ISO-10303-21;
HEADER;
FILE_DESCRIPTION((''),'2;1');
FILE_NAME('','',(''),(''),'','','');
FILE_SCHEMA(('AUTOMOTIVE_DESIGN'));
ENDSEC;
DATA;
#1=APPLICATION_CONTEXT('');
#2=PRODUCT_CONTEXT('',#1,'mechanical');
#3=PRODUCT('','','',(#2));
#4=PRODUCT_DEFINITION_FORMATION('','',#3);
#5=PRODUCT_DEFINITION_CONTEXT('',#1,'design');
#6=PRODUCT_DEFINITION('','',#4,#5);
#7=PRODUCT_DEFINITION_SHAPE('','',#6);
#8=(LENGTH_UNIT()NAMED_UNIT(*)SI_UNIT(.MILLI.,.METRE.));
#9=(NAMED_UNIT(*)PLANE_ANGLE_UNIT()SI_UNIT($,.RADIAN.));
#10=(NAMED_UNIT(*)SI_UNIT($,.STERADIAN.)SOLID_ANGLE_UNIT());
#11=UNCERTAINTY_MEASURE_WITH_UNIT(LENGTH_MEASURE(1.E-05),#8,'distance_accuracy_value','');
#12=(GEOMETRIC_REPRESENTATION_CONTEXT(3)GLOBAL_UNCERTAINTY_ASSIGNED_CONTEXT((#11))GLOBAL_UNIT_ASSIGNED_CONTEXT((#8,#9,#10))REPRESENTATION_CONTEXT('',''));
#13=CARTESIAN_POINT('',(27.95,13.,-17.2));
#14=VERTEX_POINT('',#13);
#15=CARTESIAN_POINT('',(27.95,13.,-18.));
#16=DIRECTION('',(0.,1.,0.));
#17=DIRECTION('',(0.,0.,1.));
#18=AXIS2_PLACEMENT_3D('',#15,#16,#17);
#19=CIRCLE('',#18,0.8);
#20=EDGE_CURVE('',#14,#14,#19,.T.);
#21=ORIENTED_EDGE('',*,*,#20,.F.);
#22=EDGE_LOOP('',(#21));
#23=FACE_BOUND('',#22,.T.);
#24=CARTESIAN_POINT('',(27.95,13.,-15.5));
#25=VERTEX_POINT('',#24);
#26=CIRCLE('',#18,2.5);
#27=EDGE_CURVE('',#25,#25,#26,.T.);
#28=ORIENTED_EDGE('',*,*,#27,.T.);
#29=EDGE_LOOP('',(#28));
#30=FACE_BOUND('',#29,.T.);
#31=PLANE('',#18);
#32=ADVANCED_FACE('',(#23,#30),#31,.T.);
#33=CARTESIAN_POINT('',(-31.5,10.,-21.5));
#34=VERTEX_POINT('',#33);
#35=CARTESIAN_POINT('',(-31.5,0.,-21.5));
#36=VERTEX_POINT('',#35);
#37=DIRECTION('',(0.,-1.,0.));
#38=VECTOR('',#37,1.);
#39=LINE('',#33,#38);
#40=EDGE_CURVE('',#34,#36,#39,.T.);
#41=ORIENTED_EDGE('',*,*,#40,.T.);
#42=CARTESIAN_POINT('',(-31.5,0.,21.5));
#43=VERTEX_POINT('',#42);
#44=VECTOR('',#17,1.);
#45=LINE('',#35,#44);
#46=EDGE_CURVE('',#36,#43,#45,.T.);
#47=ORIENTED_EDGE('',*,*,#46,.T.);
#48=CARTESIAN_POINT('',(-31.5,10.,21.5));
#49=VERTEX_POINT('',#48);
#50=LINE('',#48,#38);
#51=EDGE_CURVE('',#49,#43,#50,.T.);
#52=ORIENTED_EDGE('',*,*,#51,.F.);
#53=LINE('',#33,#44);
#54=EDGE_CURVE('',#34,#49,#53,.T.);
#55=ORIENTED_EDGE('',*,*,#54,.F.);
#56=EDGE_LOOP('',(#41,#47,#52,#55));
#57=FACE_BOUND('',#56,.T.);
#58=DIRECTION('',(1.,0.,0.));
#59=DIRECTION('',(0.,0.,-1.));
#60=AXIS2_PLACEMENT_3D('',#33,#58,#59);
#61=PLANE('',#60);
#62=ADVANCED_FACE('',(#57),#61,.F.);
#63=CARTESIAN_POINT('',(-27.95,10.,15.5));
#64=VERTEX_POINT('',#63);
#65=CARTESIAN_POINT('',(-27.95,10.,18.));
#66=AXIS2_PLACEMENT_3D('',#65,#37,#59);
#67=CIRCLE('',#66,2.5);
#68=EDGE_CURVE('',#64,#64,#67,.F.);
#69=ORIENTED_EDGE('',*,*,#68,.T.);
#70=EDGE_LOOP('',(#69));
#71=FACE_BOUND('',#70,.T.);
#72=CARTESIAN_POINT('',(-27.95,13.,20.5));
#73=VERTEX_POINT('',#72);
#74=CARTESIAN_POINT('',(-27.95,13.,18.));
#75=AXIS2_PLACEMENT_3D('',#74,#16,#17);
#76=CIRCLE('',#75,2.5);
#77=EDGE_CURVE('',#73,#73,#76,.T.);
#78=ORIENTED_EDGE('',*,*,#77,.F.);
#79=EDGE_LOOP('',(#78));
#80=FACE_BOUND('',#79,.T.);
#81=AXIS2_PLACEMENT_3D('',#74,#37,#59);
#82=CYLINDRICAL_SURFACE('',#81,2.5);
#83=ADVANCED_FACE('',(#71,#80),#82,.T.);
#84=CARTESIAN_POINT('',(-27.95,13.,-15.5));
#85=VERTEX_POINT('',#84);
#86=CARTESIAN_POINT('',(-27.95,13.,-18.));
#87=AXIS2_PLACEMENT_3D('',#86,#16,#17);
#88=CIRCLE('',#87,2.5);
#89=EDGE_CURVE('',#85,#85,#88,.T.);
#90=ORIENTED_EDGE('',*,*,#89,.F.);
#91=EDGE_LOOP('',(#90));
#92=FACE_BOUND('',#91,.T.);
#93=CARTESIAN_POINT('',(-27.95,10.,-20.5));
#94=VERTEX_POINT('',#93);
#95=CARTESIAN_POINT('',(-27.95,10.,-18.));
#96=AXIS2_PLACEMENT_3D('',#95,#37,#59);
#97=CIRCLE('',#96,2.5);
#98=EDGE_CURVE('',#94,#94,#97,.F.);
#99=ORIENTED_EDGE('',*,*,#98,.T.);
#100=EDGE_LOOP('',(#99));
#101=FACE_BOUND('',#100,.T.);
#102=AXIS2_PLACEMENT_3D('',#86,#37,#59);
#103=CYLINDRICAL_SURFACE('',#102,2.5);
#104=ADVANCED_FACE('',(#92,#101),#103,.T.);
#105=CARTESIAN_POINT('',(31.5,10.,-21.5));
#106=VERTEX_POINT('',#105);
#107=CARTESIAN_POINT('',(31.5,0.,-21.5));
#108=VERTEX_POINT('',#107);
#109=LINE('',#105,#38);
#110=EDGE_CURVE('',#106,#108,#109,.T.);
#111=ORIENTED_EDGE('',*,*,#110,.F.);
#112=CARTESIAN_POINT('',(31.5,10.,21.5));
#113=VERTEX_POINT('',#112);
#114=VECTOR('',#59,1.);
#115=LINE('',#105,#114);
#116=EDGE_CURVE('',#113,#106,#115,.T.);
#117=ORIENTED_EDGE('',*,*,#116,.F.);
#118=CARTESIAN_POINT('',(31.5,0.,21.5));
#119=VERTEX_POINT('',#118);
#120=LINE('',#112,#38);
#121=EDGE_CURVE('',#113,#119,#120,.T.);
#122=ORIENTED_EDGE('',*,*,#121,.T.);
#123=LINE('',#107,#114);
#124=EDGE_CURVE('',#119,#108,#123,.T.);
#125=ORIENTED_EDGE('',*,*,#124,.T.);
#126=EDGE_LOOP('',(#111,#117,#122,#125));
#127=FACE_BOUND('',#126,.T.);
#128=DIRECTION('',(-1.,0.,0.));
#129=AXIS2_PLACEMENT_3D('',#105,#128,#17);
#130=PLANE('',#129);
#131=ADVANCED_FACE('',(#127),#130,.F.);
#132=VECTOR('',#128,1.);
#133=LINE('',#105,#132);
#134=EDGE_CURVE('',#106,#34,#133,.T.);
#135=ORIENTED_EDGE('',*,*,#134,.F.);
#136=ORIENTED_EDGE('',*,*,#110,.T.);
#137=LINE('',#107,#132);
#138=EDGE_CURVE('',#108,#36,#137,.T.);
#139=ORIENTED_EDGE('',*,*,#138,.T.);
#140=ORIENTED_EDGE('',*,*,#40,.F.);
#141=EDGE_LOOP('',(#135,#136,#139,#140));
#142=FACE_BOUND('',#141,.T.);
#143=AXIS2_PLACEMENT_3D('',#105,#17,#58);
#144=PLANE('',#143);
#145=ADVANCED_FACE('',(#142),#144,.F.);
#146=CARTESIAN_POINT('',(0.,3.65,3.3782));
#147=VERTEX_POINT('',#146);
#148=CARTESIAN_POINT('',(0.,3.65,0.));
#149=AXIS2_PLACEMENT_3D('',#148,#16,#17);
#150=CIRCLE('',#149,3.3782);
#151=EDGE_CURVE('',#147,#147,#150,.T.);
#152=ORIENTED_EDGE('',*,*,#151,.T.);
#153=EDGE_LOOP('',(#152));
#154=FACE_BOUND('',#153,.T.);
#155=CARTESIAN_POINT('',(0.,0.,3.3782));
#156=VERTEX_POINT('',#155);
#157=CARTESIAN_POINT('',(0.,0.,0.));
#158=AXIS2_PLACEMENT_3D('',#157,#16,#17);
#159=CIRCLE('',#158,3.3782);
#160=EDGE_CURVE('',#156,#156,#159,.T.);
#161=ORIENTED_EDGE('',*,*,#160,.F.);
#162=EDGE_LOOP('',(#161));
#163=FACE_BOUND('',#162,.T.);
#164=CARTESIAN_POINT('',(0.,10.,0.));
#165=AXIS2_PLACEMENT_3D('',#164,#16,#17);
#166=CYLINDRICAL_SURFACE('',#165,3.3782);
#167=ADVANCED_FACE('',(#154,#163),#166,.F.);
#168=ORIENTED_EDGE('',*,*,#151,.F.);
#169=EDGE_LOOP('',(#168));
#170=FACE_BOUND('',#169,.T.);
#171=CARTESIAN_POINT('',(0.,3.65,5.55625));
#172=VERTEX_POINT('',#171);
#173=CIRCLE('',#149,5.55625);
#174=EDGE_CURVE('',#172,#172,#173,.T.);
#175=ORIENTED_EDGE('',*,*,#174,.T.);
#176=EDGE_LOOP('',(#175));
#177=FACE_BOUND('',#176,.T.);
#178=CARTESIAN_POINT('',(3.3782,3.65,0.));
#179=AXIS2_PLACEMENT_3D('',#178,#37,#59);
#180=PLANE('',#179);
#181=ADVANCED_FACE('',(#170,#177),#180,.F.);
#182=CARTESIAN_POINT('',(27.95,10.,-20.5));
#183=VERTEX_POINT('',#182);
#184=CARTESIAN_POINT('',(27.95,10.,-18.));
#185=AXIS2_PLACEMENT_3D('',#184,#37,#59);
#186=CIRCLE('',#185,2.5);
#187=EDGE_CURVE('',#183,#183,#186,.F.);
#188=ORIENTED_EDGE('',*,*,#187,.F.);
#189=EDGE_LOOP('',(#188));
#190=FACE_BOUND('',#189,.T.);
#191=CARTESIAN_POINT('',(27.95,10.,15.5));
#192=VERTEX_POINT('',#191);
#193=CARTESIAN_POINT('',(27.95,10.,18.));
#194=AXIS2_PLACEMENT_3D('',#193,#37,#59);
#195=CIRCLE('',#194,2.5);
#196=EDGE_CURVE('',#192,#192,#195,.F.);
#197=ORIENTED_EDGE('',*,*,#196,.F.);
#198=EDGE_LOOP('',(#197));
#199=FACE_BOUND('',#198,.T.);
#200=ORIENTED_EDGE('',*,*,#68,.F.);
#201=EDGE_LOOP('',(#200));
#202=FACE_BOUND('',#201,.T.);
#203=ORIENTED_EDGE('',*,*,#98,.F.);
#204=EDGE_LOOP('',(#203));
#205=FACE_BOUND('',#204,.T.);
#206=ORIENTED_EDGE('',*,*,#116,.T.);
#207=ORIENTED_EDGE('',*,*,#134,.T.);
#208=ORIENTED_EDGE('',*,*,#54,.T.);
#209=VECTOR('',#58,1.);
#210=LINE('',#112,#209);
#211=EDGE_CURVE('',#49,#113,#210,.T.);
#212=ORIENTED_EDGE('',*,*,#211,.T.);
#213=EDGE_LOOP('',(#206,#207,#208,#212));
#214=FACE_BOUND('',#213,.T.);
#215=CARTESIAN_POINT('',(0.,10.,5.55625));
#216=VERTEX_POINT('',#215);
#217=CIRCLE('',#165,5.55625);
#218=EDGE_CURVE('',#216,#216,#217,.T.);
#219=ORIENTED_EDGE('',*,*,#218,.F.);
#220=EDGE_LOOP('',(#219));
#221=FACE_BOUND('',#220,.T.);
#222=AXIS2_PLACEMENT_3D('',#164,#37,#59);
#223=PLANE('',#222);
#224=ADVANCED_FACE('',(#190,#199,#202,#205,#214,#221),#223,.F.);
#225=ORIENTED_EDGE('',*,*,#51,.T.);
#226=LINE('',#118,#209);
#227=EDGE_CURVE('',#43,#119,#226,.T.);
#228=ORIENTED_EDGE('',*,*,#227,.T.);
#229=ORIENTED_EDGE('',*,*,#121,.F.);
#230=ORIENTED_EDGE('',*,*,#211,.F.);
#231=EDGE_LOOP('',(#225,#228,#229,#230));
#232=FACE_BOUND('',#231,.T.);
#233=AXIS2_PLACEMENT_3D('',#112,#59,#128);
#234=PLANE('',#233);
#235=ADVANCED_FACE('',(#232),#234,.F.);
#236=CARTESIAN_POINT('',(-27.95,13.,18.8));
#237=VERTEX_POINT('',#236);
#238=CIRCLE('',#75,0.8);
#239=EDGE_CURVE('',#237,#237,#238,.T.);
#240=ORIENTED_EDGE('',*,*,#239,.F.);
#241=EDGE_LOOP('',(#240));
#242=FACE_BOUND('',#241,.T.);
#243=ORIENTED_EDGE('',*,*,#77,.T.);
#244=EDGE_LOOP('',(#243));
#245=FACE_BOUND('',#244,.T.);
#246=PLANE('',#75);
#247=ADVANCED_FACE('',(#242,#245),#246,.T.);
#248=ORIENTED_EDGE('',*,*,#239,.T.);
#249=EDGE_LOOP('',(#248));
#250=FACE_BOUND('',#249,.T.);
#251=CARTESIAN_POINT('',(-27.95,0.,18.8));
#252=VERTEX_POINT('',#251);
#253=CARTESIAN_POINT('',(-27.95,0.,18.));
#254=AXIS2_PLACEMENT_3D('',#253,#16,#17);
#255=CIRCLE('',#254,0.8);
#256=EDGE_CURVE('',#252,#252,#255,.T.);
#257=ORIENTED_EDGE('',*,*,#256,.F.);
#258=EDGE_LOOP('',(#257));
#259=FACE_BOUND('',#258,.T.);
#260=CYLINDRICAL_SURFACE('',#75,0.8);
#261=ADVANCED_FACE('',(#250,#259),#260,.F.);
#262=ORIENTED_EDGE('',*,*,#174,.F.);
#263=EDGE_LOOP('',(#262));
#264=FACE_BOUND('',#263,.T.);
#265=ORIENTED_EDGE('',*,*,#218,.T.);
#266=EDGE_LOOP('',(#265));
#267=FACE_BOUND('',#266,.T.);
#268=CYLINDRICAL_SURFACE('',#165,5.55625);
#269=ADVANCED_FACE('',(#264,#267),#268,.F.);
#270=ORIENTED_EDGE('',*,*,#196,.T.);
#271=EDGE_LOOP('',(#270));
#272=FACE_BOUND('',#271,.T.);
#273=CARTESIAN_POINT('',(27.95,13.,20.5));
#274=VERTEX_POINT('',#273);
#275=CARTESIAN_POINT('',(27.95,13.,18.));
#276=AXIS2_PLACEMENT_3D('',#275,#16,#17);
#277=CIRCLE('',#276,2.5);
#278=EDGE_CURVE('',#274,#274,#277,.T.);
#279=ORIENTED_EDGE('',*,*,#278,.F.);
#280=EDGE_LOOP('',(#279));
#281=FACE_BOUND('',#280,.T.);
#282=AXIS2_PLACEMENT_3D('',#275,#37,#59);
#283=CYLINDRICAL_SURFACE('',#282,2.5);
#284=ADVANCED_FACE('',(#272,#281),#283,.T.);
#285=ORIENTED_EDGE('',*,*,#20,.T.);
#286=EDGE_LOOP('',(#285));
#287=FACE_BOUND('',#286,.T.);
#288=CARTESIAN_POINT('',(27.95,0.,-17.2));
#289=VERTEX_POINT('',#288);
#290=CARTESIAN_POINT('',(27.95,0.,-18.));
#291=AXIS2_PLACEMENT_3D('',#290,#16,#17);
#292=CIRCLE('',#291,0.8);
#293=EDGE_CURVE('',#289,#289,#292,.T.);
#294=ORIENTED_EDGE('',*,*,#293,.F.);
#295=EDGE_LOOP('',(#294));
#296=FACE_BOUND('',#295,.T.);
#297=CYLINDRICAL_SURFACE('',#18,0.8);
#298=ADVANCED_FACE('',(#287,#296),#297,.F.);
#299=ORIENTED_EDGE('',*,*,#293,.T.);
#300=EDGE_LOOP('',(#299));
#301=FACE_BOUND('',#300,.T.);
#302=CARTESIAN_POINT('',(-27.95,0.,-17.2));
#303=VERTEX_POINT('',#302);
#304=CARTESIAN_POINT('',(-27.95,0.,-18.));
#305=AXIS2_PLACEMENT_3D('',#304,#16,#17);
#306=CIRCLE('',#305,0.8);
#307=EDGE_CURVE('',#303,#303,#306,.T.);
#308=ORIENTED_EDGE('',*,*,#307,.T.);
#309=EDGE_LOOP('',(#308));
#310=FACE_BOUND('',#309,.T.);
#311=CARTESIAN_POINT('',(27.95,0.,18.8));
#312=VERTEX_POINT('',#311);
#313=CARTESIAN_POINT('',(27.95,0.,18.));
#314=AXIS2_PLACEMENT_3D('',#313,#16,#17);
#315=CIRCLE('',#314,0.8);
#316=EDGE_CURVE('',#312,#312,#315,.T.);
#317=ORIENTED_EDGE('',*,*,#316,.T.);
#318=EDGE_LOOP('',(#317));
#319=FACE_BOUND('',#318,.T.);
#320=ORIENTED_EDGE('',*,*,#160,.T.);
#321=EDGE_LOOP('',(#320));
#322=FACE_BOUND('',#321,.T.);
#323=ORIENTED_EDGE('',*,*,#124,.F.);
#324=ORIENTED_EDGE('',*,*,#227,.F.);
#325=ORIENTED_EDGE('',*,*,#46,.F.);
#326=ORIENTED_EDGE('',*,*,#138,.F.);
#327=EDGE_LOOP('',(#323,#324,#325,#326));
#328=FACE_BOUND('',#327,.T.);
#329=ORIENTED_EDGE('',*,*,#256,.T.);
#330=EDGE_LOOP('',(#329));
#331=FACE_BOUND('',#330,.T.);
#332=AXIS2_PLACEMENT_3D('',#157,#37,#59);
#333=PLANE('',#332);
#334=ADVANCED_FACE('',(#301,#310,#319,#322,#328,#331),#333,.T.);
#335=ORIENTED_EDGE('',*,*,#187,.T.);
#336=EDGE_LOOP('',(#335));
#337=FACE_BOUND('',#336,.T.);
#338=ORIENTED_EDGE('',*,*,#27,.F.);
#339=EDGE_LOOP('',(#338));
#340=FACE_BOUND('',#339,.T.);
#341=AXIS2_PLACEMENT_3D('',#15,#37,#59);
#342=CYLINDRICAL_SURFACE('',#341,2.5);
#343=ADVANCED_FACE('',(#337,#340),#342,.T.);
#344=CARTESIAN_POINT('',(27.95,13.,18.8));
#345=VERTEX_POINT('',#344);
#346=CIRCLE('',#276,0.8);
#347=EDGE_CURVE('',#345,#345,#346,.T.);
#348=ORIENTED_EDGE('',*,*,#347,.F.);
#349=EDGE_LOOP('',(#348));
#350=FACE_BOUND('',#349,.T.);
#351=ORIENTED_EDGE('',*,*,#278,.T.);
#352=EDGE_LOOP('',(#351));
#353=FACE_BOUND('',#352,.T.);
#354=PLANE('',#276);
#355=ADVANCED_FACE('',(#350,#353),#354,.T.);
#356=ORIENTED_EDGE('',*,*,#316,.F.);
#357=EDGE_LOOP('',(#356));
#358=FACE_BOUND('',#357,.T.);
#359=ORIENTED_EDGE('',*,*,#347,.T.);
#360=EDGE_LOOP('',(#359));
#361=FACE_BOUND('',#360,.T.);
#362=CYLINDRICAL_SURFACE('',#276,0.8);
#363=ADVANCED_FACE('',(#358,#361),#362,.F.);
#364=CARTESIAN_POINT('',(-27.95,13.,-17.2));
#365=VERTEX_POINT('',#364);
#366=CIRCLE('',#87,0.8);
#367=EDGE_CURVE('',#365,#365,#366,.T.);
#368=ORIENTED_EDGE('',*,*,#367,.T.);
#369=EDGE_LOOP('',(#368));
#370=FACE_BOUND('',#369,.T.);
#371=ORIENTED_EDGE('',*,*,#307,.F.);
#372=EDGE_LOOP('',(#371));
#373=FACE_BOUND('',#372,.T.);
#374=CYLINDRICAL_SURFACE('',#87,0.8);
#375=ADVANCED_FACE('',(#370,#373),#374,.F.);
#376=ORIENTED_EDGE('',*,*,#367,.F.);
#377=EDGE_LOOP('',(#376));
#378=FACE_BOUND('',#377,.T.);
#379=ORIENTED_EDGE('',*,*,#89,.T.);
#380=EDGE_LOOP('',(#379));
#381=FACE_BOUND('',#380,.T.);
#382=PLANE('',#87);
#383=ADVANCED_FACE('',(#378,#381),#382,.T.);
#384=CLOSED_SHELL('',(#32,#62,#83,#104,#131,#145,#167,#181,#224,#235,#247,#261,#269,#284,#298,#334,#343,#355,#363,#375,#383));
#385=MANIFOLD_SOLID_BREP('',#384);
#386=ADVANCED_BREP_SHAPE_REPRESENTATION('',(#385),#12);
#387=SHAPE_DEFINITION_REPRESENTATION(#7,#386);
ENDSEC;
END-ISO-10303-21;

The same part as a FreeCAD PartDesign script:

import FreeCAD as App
import Part
import Sketcher


def add_polygon(sketch, points):
    """Adds a closed chain of lines whose ends are joined by coincident constraints."""
    first, n = sketch.GeometryCount, len(points)
    for a, b in zip(points, points[1:] + points[:1]):
        sketch.addGeometry(Part.LineSegment(App.Vector(*a, 0), App.Vector(*b, 0)), False)
    for i in range(n):
        sketch.addConstraint(Sketcher.Constraint("Coincident", first + i, 2, first + (i + 1) % n, 1))

doc = App.newDocument("Part")
body = doc.addObject("PartDesign::Body", "Body")

sketch1 = body.newObject("Sketcher::SketchObject", "Sketch")
sketch1.AttachmentSupport = (doc.getObject("XZ_Plane"), [""])
sketch1.MapMode = "FlatFace"
add_polygon(sketch1, [(-32, -22), (-32, 22), (32, 22), (32, -22)])
sketch1.addConstraint(Sketcher.Constraint("Vertical", 0))
sketch1.addConstraint(Sketcher.Constraint("Horizontal", 1))
sketch1.addConstraint(Sketcher.Constraint("Vertical", 2))
sketch1.addConstraint(Sketcher.Constraint("Horizontal", 3))
sketch1.addConstraint(Sketcher.Constraint("Symmetric", 0, 2, 2, 2, -1, 1))
sketch1.addConstraint(Sketcher.Constraint("DistanceX", 1, 1, 1, 2, 63.0))
sketch1.addConstraint(Sketcher.Constraint("DistanceY", 0, 1, 0, 2, 43.0))
pad1 = body.newObject("PartDesign::Pad", "Pad")
pad1.Profile = sketch1
pad1.Length = 10
pad1.Reversed = True

sketch2 = body.newObject("Sketcher::SketchObject", "Sketch001")
sketch2.AttachmentSupport = (doc.getObject("XZ_Plane"), [""])
sketch2.MapMode = "FlatFace"
sketch2.AttachmentOffset = App.Placement(App.Vector(0, 0, -10), App.Rotation())
sketch2.addGeometry(Part.Circle(App.Vector(0, 0, 0), App.Vector(0, 0, 1), 3.4), False)
sketch2.addConstraint(Sketcher.Constraint("Coincident", 0, 3, -1, 1))
sketch2.addConstraint(Sketcher.Constraint("Diameter", 0, 6.7564))
doc.recompute()
hole = body.newObject("PartDesign::Hole", "Hole")
hole.Profile = sketch2
hole.ThreadType = "None"
hole.Diameter = 6.7564
hole.DepthType = "ThroughAll"
hole.HoleCutType = "Counterbore"
hole.HoleCutDiameter = 11.1125
hole.HoleCutDepth = 6.35
hole.Reversed = True

sketch3 = body.newObject("Sketcher::SketchObject", "Sketch002")
sketch3.AttachmentSupport = (doc.getObject("XZ_Plane"), [""])
sketch3.MapMode = "FlatFace"
sketch3.AttachmentOffset = App.Placement(App.Vector(0, 0, -10), App.Rotation())
sketch3.addGeometry(Part.Circle(App.Vector(-27.9, -18, 0), App.Vector(0, 0, 1), 2.5), False)
sketch3.addGeometry(Part.Circle(App.Vector(27.9, -18, 0), App.Vector(0, 0, 1), 2.5), False)
sketch3.addGeometry(Part.Circle(App.Vector(27.9, 18, 0), App.Vector(0, 0, 1), 2.5), False)
sketch3.addGeometry(Part.Circle(App.Vector(-27.9, 18, 0), App.Vector(0, 0, 1), 2.5), False)
sketch3.addConstraint(Sketcher.Constraint("Equal", 0, 1))
sketch3.addConstraint(Sketcher.Constraint("Equal", 1, 2))
sketch3.addConstraint(Sketcher.Constraint("Equal", 2, 3))
sketch3.addConstraint(Sketcher.Constraint("Symmetric", 0, 3, 2, 3, -1, 1))
sketch3.addConstraint(Sketcher.Constraint("Symmetric", 1, 3, 3, 3, -1, 1))
sketch3.addConstraint(Sketcher.Constraint("Symmetric", 0, 3, 1, 3, -2))
sketch3.addConstraint(Sketcher.Constraint("Diameter", 0, 5.0))
sketch3.addConstraint(Sketcher.Constraint("DistanceY", 0, 3, -1, 1, 18.0))
sketch3.addConstraint(Sketcher.Constraint("DistanceX", 0, 3, 1, 3, 55.9))
pad2 = body.newObject("PartDesign::Pad", "Pad001")
pad2.Profile = sketch3
pad2.Length = 3
pad2.Reversed = True

sketch4 = body.newObject("Sketcher::SketchObject", "Sketch003")
sketch4.AttachmentSupport = (doc.getObject("XZ_Plane"), [""])
sketch4.MapMode = "FlatFace"
sketch4.AttachmentOffset = App.Placement(App.Vector(0, 0, -13), App.Rotation())
sketch4.addGeometry(Part.Circle(App.Vector(-27.9, -18, 0), App.Vector(0, 0, 1), 0.8), False)
sketch4.addGeometry(Part.Circle(App.Vector(27.9, -18, 0), App.Vector(0, 0, 1), 0.8), False)
sketch4.addGeometry(Part.Circle(App.Vector(27.9, 18, 0), App.Vector(0, 0, 1), 0.8), False)
sketch4.addGeometry(Part.Circle(App.Vector(-27.9, 18, 0), App.Vector(0, 0, 1), 0.8), False)
sketch4.addConstraint(Sketcher.Constraint("Equal", 0, 1))
sketch4.addConstraint(Sketcher.Constraint("Equal", 1, 2))
sketch4.addConstraint(Sketcher.Constraint("Equal", 2, 3))
sketch4.addConstraint(Sketcher.Constraint("Symmetric", 0, 3, 2, 3, -1, 1))
sketch4.addConstraint(Sketcher.Constraint("Symmetric", 1, 3, 3, 3, -1, 1))
sketch4.addConstraint(Sketcher.Constraint("Symmetric", 0, 3, 1, 3, -2))
sketch4.addConstraint(Sketcher.Constraint("Diameter", 0, 1.6))
sketch4.addConstraint(Sketcher.Constraint("DistanceY", 0, 3, -1, 1, 18.0))
sketch4.addConstraint(Sketcher.Constraint("DistanceX", 0, 3, 1, 3, 55.9))
doc.recompute()
hole2 = body.newObject("PartDesign::Hole", "Hole001")
hole2.Profile = sketch4
hole2.ThreadType = "None"
hole2.Diameter = 1.6
hole2.DepthType = "ThroughAll"
hole2.Reversed = True

doc.recompute()
